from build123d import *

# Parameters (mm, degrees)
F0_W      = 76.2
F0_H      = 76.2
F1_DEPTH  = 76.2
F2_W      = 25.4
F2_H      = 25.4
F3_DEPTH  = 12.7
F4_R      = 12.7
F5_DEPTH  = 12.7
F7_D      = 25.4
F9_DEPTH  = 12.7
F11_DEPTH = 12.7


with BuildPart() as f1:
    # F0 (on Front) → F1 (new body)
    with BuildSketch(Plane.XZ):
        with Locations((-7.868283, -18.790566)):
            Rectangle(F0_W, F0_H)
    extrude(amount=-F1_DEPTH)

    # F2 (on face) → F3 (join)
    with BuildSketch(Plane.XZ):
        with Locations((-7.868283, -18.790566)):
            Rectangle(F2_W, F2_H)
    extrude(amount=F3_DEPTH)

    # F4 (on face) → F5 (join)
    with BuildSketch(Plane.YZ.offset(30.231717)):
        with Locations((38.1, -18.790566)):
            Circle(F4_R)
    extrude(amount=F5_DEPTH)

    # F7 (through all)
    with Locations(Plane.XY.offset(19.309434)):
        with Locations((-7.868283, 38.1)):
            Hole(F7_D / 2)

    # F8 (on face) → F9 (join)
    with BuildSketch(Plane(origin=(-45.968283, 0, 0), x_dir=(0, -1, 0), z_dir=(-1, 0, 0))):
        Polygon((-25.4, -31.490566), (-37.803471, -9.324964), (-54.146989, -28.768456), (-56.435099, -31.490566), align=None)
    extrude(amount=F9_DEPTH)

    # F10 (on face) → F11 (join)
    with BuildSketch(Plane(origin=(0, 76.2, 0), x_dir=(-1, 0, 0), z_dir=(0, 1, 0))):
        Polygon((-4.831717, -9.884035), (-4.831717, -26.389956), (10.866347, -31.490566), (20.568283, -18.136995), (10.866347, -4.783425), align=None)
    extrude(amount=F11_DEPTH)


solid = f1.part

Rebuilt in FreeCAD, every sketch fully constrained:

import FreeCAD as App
import Part
import Sketcher

V = App.Vector
Q = App.Units.Quantity


def add_polygon(sketch, points):
    """Adds a closed chain of lines whose ends are joined by coincident constraints."""
    first, n = sketch.GeometryCount, len(points)
    for a, b in zip(points, points[1:] + points[:1]):
        sketch.addGeometry(Part.LineSegment(App.Vector(*a, 0), App.Vector(*b, 0)), False)
    for i in range(n):
        sketch.addConstraint(Sketcher.Constraint("Coincident", first + i, 2, first + (i + 1) % n, 1))

doc = App.newDocument("Part")
params = doc.addObject("Spreadsheet::Sheet", "Params")
for row, (alias, value) in enumerate([
    ("sketch1_width", "3 in"),
    ("pad1_length", "3 in"),
    ("sketch2_width", "1 in"),
    ("pad2_length", "0.5 in"),
    ("sketch3_diameter", "1 in"),
    ("pad3_length", "0.5 in"),
    ("sketch4_diameter", "1 in"),
    ("hole_diameter", "1 in"),
    ("sketch5_length", "1 in"),
    ("pad4_length", "0.5 in"),
    ("pad5_length", "0.5 in"),
], start=1):
    params.set(f"A{row}", alias)
    params.set(f"B{row}", "=" + value)
    params.setAlias(f"B{row}", alias)

body = doc.addObject("PartDesign::Body", "Body")

# Sketch on XZ plane
sketch1 = body.newObject("Sketcher::SketchObject", "Sketch")
sketch1.AttachmentSupport = (doc.getObject("XZ_Plane"), [""])
sketch1.MapMode = "FlatFace"
add_polygon(sketch1, [(-45.968283, 19.309434), (-45.968283, -56.890566), (30.231717, -56.890566), (30.231717, 19.309434)])  # lines 0-3
sketch1.addConstraint(Sketcher.Constraint("Vertical", 0))
sketch1.addConstraint(Sketcher.Constraint("Horizontal", 1))
sketch1.addConstraint(Sketcher.Constraint("Vertical", 2))
sketch1.addConstraint(Sketcher.Constraint("Horizontal", 3))
sketch1.addConstraint(Sketcher.Constraint("Equal", 3, 0))
sketch1.addConstraint(Sketcher.Constraint("DistanceX", 1, 1, 1, 2, Q("3 in")))
sketch1.addConstraint(Sketcher.Constraint("DistanceX", 0, 2, -1, 1, 45.968283))
sketch1.addConstraint(Sketcher.Constraint("DistanceY", 0, 2, -1, 1, 56.890566))
sketch1.setExpression("Constraints[9]", "Params.sketch1_width")
pad1 = body.newObject("PartDesign::Pad", "Pad")
pad1.Profile = sketch1
pad1.setExpression("Length", "Params.pad1_length")
pad1.Reversed = True

# Sketch on XZ plane
sketch2 = body.newObject("Sketcher::SketchObject", "Sketch001")
sketch2.AttachmentSupport = (doc.getObject("XZ_Plane"), [""])
sketch2.MapMode = "FlatFace"
add_polygon(sketch2, [(-20.568283, -6.090566), (-20.568283, -31.490566), (4.831717, -31.490566), (4.831717, -6.090566)])  # lines 0-3
sketch2.addConstraint(Sketcher.Constraint("Vertical", 0))
sketch2.addConstraint(Sketcher.Constraint("Horizontal", 1))
sketch2.addConstraint(Sketcher.Constraint("Vertical", 2))
sketch2.addConstraint(Sketcher.Constraint("Horizontal", 3))
sketch2.addConstraint(Sketcher.Constraint("Equal", 3, 0))
sketch2.addConstraint(Sketcher.Constraint("DistanceX", 1, 1, 1, 2, Q("1 in")))
sketch2.addConstraint(Sketcher.Constraint("DistanceX", 0, 2, -1, 1, 20.568283))
sketch2.addConstraint(Sketcher.Constraint("DistanceY", 0, 2, -1, 1, 31.490566))
sketch2.setExpression("Constraints[9]", "Params.sketch2_width")
pad2 = body.newObject("PartDesign::Pad", "Pad001")
pad2.Profile = sketch2
pad2.setExpression("Length", "Params.pad2_length")

# Sketch on YZ plane
sketch3 = body.newObject("Sketcher::SketchObject", "Sketch002")
sketch3.AttachmentSupport = (doc.getObject("YZ_Plane"), [""])
sketch3.MapMode = "FlatFace"
sketch3.AttachmentOffset = App.Placement(V(0, 0, 30.231717), App.Rotation())
sketch3.addGeometry(Part.Circle(V(38.1, -18.790566, 0), V(0, 0, 1), 12.7), False)
sketch3.addConstraint(Sketcher.Constraint("Diameter", 0, Q("1 in")))
sketch3.addConstraint(Sketcher.Constraint("DistanceX", -1, 1, 0, 3, Q("1.5 in")))
sketch3.addConstraint(Sketcher.Constraint("DistanceY", 0, 3, -1, 1, 18.790566))
sketch3.setExpression("Constraints[0]", "Params.sketch3_diameter")
pad3 = body.newObject("PartDesign::Pad", "Pad002")
pad3.Profile = sketch3
pad3.setExpression("Length", "Params.pad3_length")

# Sketch on XY plane
sketch4 = body.newObject("Sketcher::SketchObject", "Sketch003")
sketch4.AttachmentSupport = (doc.getObject("XY_Plane"), [""])
sketch4.MapMode = "FlatFace"
sketch4.AttachmentOffset = App.Placement(V(0, 0, 19.309434), App.Rotation())
sketch4.addGeometry(Part.Circle(V(-7.868283, 38.1, 0), V(0, 0, 1), 12.7), False)
sketch4.addConstraint(Sketcher.Constraint("Diameter", 0, Q("1 in")))
sketch4.addConstraint(Sketcher.Constraint("DistanceY", -1, 1, 0, 3, Q("1.5 in")))
sketch4.addConstraint(Sketcher.Constraint("DistanceX", 0, 3, -1, 1, 7.868283))
sketch4.setExpression("Constraints[0]", "Params.sketch4_diameter")
doc.recompute()
hole = body.newObject("PartDesign::Hole", "Hole")
hole.Profile = sketch4
hole.ThreadType = "None"
hole.setExpression("Diameter", "Params.hole_diameter")
hole.DepthType = "ThroughAll"

# Sketch on YZ plane
sketch5 = body.newObject("Sketcher::SketchObject", "Sketch004")
sketch5.AttachmentSupport = (doc.getObject("YZ_Plane"), [""])
sketch5.MapMode = "FlatFace"
sketch5.AttachmentOffset = App.Placement(V(0, 0, -45.968283), App.Rotation())
add_polygon(sketch5, [(25.4, -31.490566), (37.803471, -9.324964), (54.146989, -28.768456), (56.435099, -31.490566)])  # lines 0-3
sketch5.addConstraint(Sketcher.Constraint("Horizontal", 3))
sketch5.addConstraint(Sketcher.Constraint("Parallel", 1, 2))
sketch5.addConstraint(Sketcher.Constraint("Equal", 0, 1))
sketch5.addConstraint(Sketcher.Constraint("Distance", 0, Q("1 in")))
sketch5.addConstraint(Sketcher.Constraint("DistanceX", -1, 1, 3, 2, Q("1 in")))
sketch5.addConstraint(Sketcher.Constraint("DistanceX", 3, 2, 3, 1, 31.035099))
sketch5.addConstraint(Sketcher.Constraint("DistanceY", 2, 2, 0, 2, 22.165602))
sketch5.addConstraint(Sketcher.Constraint("DistanceY", 0, 2, -1, 1, 9.324964))
sketch5.setExpression("Constraints[7]", "Params.sketch5_length")
pad4 = body.newObject("PartDesign::Pad", "Pad003")
pad4.Profile = sketch5
pad4.setExpression("Length", "Params.pad4_length")
pad4.Reversed = True

# Sketch on XZ plane
sketch6 = body.newObject("Sketcher::SketchObject", "Sketch005")
sketch6.AttachmentSupport = (doc.getObject("XZ_Plane"), [""])
sketch6.MapMode = "FlatFace"
sketch6.AttachmentOffset = App.Placement(V(0, 0, -3 * 25.4), App.Rotation())
add_polygon(sketch6, [(4.831717, -9.884035), (4.831717, -26.389956), (-10.866347, -31.490566), (-20.568283, -18.136995), (-10.866347, -4.783425)])  # lines 0-4
sketch6.addConstraint(Sketcher.Constraint("Vertical", 0))
sketch6.addConstraint(Sketcher.Constraint("Vertical", 1, 2, 3, 2))
sketch6.addConstraint(Sketcher.Constraint("Equal", 1, 2))
sketch6.addConstraint(Sketcher.Constraint("Equal", 2, 3))
sketch6.addConstraint(Sketcher.Constraint("Equal", 3, 4))
sketch6.addConstraint(Sketcher.Constraint("Angle", 1, Q("-162.000001 deg")))
sketch6.addConstraint(Sketcher.Constraint("Angle", 2, Q("125.999997 deg")))
sketch6.addConstraint(Sketcher.Constraint("DistanceX", 2, 2, 0, 2, Q("1 in")))
sketch6.addConstraint(Sketcher.Constraint("DistanceX", -1, 1, 0, 2, 4.831717))
sketch6.addConstraint(Sketcher.Constraint("DistanceY", 0, 2, -1, 1, 26.389956))
pad5 = body.newObject("PartDesign::Pad", "Pad004")
pad5.Profile = sketch6
pad5.setExpression("Length", "Params.pad5_length")
pad5.Reversed = True

doc.recompute()
